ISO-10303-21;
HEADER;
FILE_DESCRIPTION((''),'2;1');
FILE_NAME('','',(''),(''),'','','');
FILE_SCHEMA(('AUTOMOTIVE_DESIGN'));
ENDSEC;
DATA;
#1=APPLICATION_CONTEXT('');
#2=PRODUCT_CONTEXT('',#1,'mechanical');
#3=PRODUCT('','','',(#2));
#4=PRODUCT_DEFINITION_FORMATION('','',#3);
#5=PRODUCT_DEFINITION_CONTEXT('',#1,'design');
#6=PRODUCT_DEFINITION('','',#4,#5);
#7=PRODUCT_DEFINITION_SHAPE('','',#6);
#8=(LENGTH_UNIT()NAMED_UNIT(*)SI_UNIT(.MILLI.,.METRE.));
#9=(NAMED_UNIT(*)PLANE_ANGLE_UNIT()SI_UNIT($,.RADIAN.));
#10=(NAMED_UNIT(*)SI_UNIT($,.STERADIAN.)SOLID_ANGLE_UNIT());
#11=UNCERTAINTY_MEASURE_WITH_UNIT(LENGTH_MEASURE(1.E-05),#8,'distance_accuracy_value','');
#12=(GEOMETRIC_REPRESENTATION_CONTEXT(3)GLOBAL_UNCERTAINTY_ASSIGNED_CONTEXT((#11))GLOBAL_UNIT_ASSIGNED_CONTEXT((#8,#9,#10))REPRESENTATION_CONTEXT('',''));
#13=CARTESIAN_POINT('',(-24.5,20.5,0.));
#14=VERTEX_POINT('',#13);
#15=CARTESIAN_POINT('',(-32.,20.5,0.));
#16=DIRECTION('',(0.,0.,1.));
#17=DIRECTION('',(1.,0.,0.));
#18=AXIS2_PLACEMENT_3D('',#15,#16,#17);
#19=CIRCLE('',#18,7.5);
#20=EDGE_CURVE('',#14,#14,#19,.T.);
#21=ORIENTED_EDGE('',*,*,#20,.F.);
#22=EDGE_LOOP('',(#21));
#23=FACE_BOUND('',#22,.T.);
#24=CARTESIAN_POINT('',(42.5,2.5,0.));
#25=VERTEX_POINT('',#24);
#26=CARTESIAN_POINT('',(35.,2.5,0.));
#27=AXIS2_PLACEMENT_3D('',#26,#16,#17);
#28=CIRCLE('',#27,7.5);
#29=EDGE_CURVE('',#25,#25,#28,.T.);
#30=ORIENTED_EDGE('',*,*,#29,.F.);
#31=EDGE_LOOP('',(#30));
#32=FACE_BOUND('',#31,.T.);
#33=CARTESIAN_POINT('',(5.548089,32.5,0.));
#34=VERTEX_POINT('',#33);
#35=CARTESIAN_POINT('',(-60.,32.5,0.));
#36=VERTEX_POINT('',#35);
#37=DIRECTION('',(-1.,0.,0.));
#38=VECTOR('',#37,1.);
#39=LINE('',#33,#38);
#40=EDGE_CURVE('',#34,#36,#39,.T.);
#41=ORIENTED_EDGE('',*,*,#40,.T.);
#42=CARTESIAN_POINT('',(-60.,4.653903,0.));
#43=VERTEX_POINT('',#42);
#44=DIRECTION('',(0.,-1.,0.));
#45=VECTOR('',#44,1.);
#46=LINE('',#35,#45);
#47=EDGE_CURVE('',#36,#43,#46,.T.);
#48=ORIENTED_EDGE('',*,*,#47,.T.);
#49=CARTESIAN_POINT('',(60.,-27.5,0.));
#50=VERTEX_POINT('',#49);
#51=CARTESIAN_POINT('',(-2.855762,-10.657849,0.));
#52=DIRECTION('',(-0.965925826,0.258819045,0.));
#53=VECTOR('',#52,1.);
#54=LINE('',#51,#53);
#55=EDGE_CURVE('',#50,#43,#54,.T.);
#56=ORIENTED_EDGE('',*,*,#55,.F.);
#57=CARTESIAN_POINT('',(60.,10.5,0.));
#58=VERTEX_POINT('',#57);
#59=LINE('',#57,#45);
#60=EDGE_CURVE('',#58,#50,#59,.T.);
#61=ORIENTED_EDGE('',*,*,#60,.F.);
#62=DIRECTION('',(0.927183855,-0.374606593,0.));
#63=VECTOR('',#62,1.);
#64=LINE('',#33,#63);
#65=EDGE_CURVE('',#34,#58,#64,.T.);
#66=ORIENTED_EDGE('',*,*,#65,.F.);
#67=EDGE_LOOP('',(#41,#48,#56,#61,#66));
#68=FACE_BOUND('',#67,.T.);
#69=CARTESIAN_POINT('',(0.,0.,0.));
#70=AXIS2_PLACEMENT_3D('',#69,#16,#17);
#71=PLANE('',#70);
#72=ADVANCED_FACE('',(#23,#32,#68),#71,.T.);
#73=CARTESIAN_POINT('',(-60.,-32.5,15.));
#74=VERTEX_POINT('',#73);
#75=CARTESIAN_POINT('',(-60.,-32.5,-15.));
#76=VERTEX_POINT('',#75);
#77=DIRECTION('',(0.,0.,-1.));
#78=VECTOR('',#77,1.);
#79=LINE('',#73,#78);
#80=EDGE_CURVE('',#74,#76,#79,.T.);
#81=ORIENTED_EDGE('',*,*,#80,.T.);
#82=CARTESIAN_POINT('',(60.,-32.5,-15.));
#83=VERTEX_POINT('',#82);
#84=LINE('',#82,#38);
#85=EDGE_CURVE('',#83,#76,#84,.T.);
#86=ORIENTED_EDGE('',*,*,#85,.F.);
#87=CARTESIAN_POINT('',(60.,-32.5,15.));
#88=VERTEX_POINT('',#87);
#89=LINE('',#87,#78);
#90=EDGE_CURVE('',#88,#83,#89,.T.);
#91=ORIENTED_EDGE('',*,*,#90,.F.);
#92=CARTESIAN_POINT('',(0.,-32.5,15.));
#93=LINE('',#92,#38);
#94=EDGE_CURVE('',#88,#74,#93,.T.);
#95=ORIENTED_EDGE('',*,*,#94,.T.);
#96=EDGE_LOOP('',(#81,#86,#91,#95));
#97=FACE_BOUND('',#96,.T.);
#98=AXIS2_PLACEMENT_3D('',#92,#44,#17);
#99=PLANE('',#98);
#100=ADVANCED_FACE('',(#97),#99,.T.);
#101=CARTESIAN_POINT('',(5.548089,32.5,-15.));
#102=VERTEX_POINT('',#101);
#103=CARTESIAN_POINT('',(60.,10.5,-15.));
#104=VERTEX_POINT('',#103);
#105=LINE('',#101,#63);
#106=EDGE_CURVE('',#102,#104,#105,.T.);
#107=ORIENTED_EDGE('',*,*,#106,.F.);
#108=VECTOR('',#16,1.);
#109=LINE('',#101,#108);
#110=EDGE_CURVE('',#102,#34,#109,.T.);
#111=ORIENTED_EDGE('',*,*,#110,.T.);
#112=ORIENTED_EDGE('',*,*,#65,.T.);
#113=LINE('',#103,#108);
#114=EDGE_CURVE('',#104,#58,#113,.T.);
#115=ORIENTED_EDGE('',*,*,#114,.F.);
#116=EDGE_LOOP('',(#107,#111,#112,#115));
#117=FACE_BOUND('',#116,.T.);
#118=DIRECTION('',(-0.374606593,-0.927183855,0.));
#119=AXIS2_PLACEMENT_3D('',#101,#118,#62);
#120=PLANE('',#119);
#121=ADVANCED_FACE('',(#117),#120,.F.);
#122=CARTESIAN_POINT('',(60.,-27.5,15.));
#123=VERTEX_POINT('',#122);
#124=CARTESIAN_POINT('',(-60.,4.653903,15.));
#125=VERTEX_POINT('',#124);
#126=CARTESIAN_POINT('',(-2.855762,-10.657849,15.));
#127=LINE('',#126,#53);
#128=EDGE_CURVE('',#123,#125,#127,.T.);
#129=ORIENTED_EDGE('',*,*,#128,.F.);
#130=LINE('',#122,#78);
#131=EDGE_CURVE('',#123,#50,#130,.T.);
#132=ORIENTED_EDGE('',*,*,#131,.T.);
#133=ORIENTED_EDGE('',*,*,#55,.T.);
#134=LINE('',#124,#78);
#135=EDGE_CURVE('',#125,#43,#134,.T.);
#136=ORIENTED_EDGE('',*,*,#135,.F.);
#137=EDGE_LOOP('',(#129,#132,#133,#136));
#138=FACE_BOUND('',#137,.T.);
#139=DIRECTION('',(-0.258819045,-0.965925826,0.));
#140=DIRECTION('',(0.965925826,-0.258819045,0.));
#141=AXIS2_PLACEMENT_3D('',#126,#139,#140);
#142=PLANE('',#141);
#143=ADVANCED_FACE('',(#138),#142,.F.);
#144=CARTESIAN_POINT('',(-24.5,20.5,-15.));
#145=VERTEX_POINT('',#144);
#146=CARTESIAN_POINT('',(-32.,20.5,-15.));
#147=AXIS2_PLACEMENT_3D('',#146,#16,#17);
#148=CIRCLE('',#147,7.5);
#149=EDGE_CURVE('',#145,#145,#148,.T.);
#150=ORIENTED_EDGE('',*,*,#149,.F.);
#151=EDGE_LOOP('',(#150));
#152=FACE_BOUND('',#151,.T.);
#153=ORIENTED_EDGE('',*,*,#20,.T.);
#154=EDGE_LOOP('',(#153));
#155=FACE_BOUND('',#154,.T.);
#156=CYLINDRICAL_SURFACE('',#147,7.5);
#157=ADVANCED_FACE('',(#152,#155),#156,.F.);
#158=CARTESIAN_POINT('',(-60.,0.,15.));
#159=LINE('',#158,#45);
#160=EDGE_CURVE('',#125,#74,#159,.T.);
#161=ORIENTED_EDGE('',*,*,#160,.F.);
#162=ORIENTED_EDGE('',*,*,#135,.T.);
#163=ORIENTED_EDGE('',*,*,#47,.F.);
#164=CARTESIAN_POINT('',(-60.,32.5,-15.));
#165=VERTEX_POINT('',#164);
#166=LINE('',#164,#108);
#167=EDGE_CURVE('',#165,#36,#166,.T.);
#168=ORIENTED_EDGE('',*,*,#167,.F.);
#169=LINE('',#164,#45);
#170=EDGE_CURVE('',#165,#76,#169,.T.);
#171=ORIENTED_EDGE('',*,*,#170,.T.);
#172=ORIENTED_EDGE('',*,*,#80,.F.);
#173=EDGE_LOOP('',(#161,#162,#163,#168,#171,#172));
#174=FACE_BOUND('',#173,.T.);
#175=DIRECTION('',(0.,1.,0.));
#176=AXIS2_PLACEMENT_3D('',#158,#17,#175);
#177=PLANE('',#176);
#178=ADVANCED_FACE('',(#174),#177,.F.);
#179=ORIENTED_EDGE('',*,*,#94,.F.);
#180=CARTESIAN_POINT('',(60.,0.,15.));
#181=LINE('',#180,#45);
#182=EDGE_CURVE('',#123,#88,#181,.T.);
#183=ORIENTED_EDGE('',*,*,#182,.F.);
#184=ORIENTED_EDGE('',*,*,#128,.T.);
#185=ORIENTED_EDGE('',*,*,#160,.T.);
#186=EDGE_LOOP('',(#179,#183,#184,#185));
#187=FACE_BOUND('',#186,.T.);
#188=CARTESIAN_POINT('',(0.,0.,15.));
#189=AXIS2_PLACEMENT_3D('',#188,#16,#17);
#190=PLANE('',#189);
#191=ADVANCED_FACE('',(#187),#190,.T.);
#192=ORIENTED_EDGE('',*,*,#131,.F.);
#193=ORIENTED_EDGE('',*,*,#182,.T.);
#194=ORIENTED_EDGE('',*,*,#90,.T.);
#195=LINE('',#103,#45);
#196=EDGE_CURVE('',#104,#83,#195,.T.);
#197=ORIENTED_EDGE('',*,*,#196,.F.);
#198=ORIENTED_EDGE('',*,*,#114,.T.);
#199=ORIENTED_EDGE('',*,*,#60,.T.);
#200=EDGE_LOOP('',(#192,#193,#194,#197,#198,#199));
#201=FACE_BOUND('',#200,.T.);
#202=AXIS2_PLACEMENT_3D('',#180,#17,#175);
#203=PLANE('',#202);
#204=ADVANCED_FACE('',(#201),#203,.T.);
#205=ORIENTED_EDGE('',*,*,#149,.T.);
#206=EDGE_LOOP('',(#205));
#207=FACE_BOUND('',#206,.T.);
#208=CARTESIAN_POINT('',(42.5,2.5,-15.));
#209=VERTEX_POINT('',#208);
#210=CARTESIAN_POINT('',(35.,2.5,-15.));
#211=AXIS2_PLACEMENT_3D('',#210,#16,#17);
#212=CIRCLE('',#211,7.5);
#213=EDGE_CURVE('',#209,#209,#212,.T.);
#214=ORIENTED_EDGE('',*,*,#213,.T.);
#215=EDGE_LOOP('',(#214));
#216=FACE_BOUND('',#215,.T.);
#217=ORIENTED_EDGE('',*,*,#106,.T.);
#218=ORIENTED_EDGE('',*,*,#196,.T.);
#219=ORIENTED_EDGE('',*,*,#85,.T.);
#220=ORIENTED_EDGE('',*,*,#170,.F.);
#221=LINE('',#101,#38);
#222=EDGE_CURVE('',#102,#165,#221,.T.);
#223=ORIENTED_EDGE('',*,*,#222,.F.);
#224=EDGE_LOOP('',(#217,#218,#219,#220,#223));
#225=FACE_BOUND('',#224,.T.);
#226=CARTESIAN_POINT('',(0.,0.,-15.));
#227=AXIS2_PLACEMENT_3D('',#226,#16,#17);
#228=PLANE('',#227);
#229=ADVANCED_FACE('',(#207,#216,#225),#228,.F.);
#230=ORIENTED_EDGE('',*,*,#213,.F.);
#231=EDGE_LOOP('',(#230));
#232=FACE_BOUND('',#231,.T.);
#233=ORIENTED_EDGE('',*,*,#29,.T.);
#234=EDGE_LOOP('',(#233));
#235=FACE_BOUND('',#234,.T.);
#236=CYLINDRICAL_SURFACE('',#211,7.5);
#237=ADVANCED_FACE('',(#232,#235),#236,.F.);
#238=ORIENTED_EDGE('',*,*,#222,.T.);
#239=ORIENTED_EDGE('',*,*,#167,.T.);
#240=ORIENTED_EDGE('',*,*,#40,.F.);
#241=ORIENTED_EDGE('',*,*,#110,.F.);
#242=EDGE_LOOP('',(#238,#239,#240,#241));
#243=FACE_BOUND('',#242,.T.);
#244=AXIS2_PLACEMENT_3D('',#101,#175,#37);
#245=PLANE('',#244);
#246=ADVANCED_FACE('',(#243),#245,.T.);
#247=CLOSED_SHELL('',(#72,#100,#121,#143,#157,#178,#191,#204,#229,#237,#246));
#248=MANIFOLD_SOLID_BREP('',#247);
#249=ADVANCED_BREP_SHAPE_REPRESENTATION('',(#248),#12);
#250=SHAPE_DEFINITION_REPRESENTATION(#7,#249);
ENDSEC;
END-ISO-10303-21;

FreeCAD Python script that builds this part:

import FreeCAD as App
import Part
import Sketcher
Q = App.Units.Quantity


def add_polygon(sketch, points):
    """Adds a closed chain of lines whose ends are joined by coincident constraints."""
    first, n = sketch.GeometryCount, len(points)
    for a, b in zip(points, points[1:] + points[:1]):
        sketch.addGeometry(Part.LineSegment(App.Vector(*a, 0), App.Vector(*b, 0)), False)
    for i in range(n):
        sketch.addConstraint(Sketcher.Constraint("Coincident", first + i, 2, first + (i + 1) % n, 1))

doc = App.newDocument("Part")
params = doc.addObject("Spreadsheet::Sheet", "Params")
for row, (alias, value) in enumerate([
    ("sketch1_width", "120 mm"),
    ("sketch1_height", "5 mm"),
    ("pad1_length", "15 mm"),
    ("sketch2_diameter", "15 mm"),
    ("sketch2_width", "120 mm"),
    ("sketch2_height", "65 mm"),
    ("sketch2_height2", "43 mm"),
    ("pad2_length", "15 mm"),
], start=1):
    params.set(f"A{row}", alias)
    params.set(f"B{row}", "=" + value)
    params.setAlias(f"B{row}", alias)

body = doc.addObject("PartDesign::Body", "Body")

sketch1 = body.newObject("Sketcher::SketchObject", "Sketch")
sketch1.AttachmentSupport = (doc.getObject("XY_Plane"), [""])
sketch1.MapMode = "FlatFace"
add_polygon(sketch1, [(60, -32), (60, -28), (-60, 5), (-60, -32)])
sketch1.addConstraint([
    Sketcher.Constraint("Vertical", 0),
    Sketcher.Constraint("Vertical", 2),
    Sketcher.Constraint("Horizontal", 3),
    Sketcher.Constraint("DistanceX", 3, 1, 3, 2, Q("120 mm")),
    Sketcher.Constraint("DistanceY", 0, 1, 0, 2, Q("5 mm")),
    Sketcher.Constraint("Angle", 1, Q("165 deg")),
    Sketcher.Constraint("DistanceX", -1, 1, 0, 2, Q("60 mm")),
    Sketcher.Constraint("DistanceY", 0, 2, -1, 1, Q("27.5 mm")),
])
sketch1.setExpression("Constraints[7]", "Params.sketch1_width")
sketch1.setExpression("Constraints[8]", "Params.sketch1_height")
pad1 = body.newObject("PartDesign::Pad", "Pad")
pad1.Profile = sketch1
pad1.setExpression("Length", "Params.pad1_length")

sketch2 = body.newObject("Sketcher::SketchObject", "Sketch001")
sketch2.AttachmentSupport = (doc.getObject("XY_Plane"), [""])
sketch2.MapMode = "FlatFace"
add_polygon(sketch2, [(6, 32), (-60, 32), (-60, -32), (60, -32), (60, 10)])
sketch2.addGeometry(Part.Circle(App.Vector(35, 2, 0), App.Vector(0, 0, 1), 8), False)
sketch2.addGeometry(Part.Circle(App.Vector(-32, 20, 0), App.Vector(0, 0, 1), 8), False)
sketch2.addConstraint([
    Sketcher.Constraint("Horizontal", 0),
    Sketcher.Constraint("Vertical", 1),
    Sketcher.Constraint("Horizontal", 2),
    Sketcher.Constraint("Vertical", 3),
    Sketcher.Constraint("Equal", 5, 6),
    Sketcher.Constraint("Symmetric", 0, 2, 2, 2, -1, 1),
    Sketcher.Constraint("Diameter", 5, Q("15 mm")),
    Sketcher.Constraint("DistanceX", 2, 1, 2, 2, Q("120 mm")),
    Sketcher.Constraint("DistanceY", 1, 2, 1, 1, Q("65 mm")),
    Sketcher.Constraint("DistanceY", 3, 1, 3, 2, Q("43 mm")),
    Sketcher.Constraint("Angle", 4, Q("158 deg")),
    Sketcher.Constraint("DistanceX", -1, 1, 5, 3, Q("35 mm")),
    Sketcher.Constraint("DistanceX", 6, 3, -1, 1, Q("32 mm")),
    Sketcher.Constraint("DistanceY", 5, 3, 6, 3, Q("18 mm")),
    Sketcher.Constraint("DistanceY", 6, 3, 0, 2, Q("12 mm")),
])
sketch2.setExpression("Constraints[11]", "Params.sketch2_diameter")
sketch2.setExpression("Constraints[12]", "Params.sketch2_width")
sketch2.setExpression("Constraints[13]", "Params.sketch2_height")
sketch2.setExpression("Constraints[14]", "Params.sketch2_height2")
pad2 = body.newObject("PartDesign::Pad", "Pad001")
pad2.Profile = sketch2
pad2.setExpression("Length", "Params.pad2_length")
pad2.Reversed = True

doc.recompute()
